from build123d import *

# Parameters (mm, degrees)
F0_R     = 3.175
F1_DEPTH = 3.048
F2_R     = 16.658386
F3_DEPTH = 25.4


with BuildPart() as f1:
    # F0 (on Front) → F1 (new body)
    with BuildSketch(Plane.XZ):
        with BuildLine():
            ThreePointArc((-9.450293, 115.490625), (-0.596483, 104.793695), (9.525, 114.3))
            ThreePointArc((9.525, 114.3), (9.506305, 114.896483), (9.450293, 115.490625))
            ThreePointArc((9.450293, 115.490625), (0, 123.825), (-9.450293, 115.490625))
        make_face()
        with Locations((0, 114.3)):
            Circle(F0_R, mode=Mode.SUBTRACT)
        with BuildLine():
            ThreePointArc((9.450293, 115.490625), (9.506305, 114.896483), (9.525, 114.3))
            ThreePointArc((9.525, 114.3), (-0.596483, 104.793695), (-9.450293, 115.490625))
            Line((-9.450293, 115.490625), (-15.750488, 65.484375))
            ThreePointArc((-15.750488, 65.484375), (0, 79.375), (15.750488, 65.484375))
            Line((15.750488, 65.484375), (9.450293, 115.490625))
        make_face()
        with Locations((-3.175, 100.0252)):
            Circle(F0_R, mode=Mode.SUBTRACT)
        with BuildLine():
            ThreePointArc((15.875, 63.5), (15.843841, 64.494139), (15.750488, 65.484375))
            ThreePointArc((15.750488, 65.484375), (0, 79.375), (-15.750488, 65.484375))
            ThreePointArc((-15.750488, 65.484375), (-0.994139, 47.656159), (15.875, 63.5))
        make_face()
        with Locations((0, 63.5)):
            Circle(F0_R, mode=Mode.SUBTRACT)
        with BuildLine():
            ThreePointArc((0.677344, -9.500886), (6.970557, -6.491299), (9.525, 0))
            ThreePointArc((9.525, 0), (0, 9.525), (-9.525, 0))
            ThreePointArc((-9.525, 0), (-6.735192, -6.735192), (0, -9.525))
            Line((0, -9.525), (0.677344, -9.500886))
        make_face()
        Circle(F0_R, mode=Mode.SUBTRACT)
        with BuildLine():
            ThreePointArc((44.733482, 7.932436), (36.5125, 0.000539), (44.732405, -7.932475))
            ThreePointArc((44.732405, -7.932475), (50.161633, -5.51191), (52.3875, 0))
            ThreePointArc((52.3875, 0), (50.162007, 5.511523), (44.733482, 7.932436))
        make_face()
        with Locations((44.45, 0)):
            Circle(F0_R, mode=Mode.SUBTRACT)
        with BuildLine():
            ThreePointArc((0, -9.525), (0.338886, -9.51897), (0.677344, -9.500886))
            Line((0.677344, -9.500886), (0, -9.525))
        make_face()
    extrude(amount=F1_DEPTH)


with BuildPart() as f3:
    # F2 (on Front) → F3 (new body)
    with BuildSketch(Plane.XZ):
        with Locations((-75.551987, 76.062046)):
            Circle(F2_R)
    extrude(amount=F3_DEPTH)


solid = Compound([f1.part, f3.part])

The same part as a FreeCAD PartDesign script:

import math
import FreeCAD as App
import Part
import Sketcher

V = App.Vector
Q = App.Units.Quantity

doc = App.newDocument("Part")
body = doc.addObject("PartDesign::Body", "Body")
body.AllowCompound = True

# Sketch on XZ plane
sketch1 = doc.addObject("Sketcher::SketchObject", "Sketch")
body.addObject(sketch1)
sketch1.AttachmentSupport = (doc.XZ_Plane, [""])
sketch1.MapMode = "FlatFace"
sketch1.addGeometry([
    Part.ArcOfCircle(Part.Circle(V(0, 114.3, 0), V(0, 0, 1), 9.525), math.radians(7.180756), math.radians(172.819244)),  # 0
    Part.LineSegment(V(-9.450293, 115.490625, 0), V(-15.750488, 65.484375, 0)),  # 1
    Part.ArcOfCircle(Part.Circle(V(0, 63.5, 0), V(0, 0, 1), 15.875), math.radians(172.819245), math.radians(359.999999)),  # 2
    Part.ArcOfCircle(Part.Circle(V(-0.000171, 63.499987, 0), V(0, 0, 1), 15.875171), math.radians(0.000047), math.radians(7.180725)),  # 3
    Part.LineSegment(V(15.750488, 65.484375, 0), V(9.450293, 115.490625, 0)),  # 4
    Part.Circle(V(0, 63.5, 0), V(0, 0, 1), 3.175),  # 5
    Part.Circle(V(-3.175, 100.0252, 0), V(0, 0, 1), 3.175),  # 6
    Part.Circle(V(0, 114.3, 0), V(0, 0, 1), 3.175),  # 7
    Part.ArcOfCircle(Part.Circle(V(0, 0, 0), V(0, 0, 1), 9.525), math.radians(-85.922127), math.radians(0.000001)),  # 8
    Part.ArcOfCircle(Part.Circle(V(0, 0, 0), V(0, 0, 1), 9.525), math.radians(0), math.radians(180)),  # 9
    Part.ArcOfCircle(Part.Circle(V(0, 0, 0), V(0, 0, 1), 9.525), math.radians(-179.999998), math.radians(-90.000002)),  # 10
    Part.ArcOfCircle(Part.Circle(V(0.000022, -0.000517, 0), V(0, 0, 1), 9.524483), math.radians(-90.000132), math.radians(-85.922038)),  # 11
    Part.Circle(V(0, 0, 0), V(0, 0, 1), 3.175),  # 12
    Part.ArcOfCircle(Part.Circle(V(44.45, 0, 0), V(0, 0, 1), 7.9375), math.radians(87.953288), math.radians(272.038932)),  # 13
    Part.ArcOfCircle(Part.Circle(V(44.449999, 0.000001, 0), V(0, 0, 1), 7.937501), math.radians(-87.961059), math.radians(-0.000005)),  # 14
    Part.ArcOfCircle(Part.Circle(V(44.450001, 0.000001, 0), V(0, 0, 1), 7.937499), math.radians(-0.000005), math.radians(87.953294)),  # 15
    Part.Circle(V(44.45, 0, 0), V(0, 0, 1), 3.175),  # 16
], False)
sketch1.addConstraint([
    Sketcher.Constraint("Coincident", 0, 2, 1, 1),
    Sketcher.Constraint("Coincident", 1, 2, 2, 1),
    Sketcher.Constraint("Coincident", 2, 2, 3, 1),
    Sketcher.Constraint("Coincident", 3, 2, 4, 1),
    Sketcher.Constraint("Coincident", 4, 2, 0, 1),
    Sketcher.Constraint("Coincident", 8, 2, 9, 1),
    Sketcher.Constraint("Coincident", 9, 2, 10, 1),
    Sketcher.Constraint("Coincident", 10, 2, 11, 1),
    Sketcher.Constraint("Coincident", 11, 2, 8, 1),
    Sketcher.Constraint("Coincident", 13, 2, 14, 1),
    Sketcher.Constraint("Coincident", 14, 2, 15, 1),
    Sketcher.Constraint("Coincident", 15, 2, 13, 1),
    Sketcher.Constraint("Coincident", 8, 3, -1, 1),
    Sketcher.Constraint("Coincident", 9, 3, -1, 1),
    Sketcher.Constraint("Coincident", 10, 3, -1, 1),
    Sketcher.Constraint("Coincident", 12, 3, -1, 1),
    Sketcher.Constraint("Coincident", 5, 3, 2, 3),
    Sketcher.Constraint("Coincident", 7, 3, 0, 3),
    Sketcher.Constraint("Coincident", 14, 3, 13, 3),
    Sketcher.Constraint("Coincident", 16, 3, 13, 3),
    Sketcher.Constraint("PointOnObject", 0, 3, -2),
    Sketcher.Constraint("PointOnObject", 2, 3, -2),
    Sketcher.Constraint("PointOnObject", 13, 3, -1),
    Sketcher.Constraint("PointOnObject", 15, 3, -1),
    Sketcher.Constraint("PointOnObject", 8, 2, -1),
    Sketcher.Constraint("PointOnObject", 9, 2, -1),
    Sketcher.Constraint("PointOnObject", 10, 2, -2),
    Sketcher.Constraint("PointOnObject", 14, 2, -1),
    Sketcher.Constraint("Diameter", 5, Q("0.25 in")),
    Sketcher.Constraint("Diameter", 6, Q("0.25 in")),
    Sketcher.Constraint("Diameter", 7, Q("0.25 in")),
    Sketcher.Constraint("Diameter", 12, Q("0.25 in")),
    Sketcher.Constraint("Diameter", 16, Q("0.25 in")),
    Sketcher.Constraint("Radius", 0, Q("0.375 in")),
    Sketcher.Constraint("Radius", 2, Q("0.625 in")),
    Sketcher.Constraint("Radius", 8, Q("0.375 in")),
    Sketcher.Constraint("Radius", 13, Q("0.3125 in")),
    Sketcher.Constraint("DistanceY", 2, 3, 0, 3, Q("2 in")),
    Sketcher.Constraint("DistanceY", -1, 1, 0, 3, Q("4.5 in")),
    Sketcher.Constraint("DistanceY", -1, 1, 2, 2, Q("2.5 in")),
    Sketcher.Constraint("DistanceX", -1, 1, 13, 3, Q("1.75 in")),
    Sketcher.Constraint("DistanceX", 6, 3, 2, 2, Q("0.75 in")),
    Sketcher.Constraint("DistanceY", -1, 1, 6, 3, Q("3.938 in")),
    Sketcher.Constraint("DistanceY", -1, 1, 0, 2, Q("4.546875 in")),
    Sketcher.Constraint("DistanceY", -1, 1, 1, 2, Q("2.578125 in")),
    Sketcher.Constraint("DistanceY", -1, 1, 3, 2, Q("2.578125 in")),
    Sketcher.Constraint("DistanceY", -1, 1, 4, 2, Q("4.546875 in")),
    Sketcher.Constraint("Radius", 3, Q("15.875171 mm")),
    Sketcher.Constraint("Radius", 11, Q("9.524483 mm")),
    Sketcher.Constraint("DistanceX", -1, 1, 3, 2, Q("15.750488 mm")),
    Sketcher.Constraint("DistanceY", 11, 2, 11, 3, Q("9.500369 mm")),
    Sketcher.Constraint("DistanceX", 15, 3, 15, 2, Q("0.283481 mm")),
    Sketcher.Constraint("DistanceX", -1, 1, 13, 2, Q("44.732405 mm")),
])
pad1 = doc.addObject("PartDesign::Pad", "Pad")
body.addObject(pad1)
pad1.Profile = sketch1
pad1.Length = Q("0.12 in")
body2 = doc.addObject("PartDesign::Body", "Body001")

# Sketch on XZ plane
sketch2 = doc.addObject("Sketcher::SketchObject", "Sketch001")
body2.addObject(sketch2)
sketch2.AttachmentSupport = (doc.getObject("XZ_Plane001"), [""])
sketch2.MapMode = "FlatFace"
sketch2.addGeometry(Part.Circle(V(-76, 76, 0), V(0, 0, 1), 17), False)
sketch2.addConstraint([
    Sketcher.Constraint("Diameter", 0, Q("33.316772 mm")),
    Sketcher.Constraint("DistanceX", 0, 3, -1, 1, Q("75.551987 mm")),
    Sketcher.Constraint("DistanceY", -1, 1, 0, 3, Q("76.062046 mm")),
])
pad2 = doc.addObject("PartDesign::Pad", "Pad001")
body2.addObject(pad2)
pad2.Profile = sketch2
pad2.Length = Q("1 in")

doc.recompute()
